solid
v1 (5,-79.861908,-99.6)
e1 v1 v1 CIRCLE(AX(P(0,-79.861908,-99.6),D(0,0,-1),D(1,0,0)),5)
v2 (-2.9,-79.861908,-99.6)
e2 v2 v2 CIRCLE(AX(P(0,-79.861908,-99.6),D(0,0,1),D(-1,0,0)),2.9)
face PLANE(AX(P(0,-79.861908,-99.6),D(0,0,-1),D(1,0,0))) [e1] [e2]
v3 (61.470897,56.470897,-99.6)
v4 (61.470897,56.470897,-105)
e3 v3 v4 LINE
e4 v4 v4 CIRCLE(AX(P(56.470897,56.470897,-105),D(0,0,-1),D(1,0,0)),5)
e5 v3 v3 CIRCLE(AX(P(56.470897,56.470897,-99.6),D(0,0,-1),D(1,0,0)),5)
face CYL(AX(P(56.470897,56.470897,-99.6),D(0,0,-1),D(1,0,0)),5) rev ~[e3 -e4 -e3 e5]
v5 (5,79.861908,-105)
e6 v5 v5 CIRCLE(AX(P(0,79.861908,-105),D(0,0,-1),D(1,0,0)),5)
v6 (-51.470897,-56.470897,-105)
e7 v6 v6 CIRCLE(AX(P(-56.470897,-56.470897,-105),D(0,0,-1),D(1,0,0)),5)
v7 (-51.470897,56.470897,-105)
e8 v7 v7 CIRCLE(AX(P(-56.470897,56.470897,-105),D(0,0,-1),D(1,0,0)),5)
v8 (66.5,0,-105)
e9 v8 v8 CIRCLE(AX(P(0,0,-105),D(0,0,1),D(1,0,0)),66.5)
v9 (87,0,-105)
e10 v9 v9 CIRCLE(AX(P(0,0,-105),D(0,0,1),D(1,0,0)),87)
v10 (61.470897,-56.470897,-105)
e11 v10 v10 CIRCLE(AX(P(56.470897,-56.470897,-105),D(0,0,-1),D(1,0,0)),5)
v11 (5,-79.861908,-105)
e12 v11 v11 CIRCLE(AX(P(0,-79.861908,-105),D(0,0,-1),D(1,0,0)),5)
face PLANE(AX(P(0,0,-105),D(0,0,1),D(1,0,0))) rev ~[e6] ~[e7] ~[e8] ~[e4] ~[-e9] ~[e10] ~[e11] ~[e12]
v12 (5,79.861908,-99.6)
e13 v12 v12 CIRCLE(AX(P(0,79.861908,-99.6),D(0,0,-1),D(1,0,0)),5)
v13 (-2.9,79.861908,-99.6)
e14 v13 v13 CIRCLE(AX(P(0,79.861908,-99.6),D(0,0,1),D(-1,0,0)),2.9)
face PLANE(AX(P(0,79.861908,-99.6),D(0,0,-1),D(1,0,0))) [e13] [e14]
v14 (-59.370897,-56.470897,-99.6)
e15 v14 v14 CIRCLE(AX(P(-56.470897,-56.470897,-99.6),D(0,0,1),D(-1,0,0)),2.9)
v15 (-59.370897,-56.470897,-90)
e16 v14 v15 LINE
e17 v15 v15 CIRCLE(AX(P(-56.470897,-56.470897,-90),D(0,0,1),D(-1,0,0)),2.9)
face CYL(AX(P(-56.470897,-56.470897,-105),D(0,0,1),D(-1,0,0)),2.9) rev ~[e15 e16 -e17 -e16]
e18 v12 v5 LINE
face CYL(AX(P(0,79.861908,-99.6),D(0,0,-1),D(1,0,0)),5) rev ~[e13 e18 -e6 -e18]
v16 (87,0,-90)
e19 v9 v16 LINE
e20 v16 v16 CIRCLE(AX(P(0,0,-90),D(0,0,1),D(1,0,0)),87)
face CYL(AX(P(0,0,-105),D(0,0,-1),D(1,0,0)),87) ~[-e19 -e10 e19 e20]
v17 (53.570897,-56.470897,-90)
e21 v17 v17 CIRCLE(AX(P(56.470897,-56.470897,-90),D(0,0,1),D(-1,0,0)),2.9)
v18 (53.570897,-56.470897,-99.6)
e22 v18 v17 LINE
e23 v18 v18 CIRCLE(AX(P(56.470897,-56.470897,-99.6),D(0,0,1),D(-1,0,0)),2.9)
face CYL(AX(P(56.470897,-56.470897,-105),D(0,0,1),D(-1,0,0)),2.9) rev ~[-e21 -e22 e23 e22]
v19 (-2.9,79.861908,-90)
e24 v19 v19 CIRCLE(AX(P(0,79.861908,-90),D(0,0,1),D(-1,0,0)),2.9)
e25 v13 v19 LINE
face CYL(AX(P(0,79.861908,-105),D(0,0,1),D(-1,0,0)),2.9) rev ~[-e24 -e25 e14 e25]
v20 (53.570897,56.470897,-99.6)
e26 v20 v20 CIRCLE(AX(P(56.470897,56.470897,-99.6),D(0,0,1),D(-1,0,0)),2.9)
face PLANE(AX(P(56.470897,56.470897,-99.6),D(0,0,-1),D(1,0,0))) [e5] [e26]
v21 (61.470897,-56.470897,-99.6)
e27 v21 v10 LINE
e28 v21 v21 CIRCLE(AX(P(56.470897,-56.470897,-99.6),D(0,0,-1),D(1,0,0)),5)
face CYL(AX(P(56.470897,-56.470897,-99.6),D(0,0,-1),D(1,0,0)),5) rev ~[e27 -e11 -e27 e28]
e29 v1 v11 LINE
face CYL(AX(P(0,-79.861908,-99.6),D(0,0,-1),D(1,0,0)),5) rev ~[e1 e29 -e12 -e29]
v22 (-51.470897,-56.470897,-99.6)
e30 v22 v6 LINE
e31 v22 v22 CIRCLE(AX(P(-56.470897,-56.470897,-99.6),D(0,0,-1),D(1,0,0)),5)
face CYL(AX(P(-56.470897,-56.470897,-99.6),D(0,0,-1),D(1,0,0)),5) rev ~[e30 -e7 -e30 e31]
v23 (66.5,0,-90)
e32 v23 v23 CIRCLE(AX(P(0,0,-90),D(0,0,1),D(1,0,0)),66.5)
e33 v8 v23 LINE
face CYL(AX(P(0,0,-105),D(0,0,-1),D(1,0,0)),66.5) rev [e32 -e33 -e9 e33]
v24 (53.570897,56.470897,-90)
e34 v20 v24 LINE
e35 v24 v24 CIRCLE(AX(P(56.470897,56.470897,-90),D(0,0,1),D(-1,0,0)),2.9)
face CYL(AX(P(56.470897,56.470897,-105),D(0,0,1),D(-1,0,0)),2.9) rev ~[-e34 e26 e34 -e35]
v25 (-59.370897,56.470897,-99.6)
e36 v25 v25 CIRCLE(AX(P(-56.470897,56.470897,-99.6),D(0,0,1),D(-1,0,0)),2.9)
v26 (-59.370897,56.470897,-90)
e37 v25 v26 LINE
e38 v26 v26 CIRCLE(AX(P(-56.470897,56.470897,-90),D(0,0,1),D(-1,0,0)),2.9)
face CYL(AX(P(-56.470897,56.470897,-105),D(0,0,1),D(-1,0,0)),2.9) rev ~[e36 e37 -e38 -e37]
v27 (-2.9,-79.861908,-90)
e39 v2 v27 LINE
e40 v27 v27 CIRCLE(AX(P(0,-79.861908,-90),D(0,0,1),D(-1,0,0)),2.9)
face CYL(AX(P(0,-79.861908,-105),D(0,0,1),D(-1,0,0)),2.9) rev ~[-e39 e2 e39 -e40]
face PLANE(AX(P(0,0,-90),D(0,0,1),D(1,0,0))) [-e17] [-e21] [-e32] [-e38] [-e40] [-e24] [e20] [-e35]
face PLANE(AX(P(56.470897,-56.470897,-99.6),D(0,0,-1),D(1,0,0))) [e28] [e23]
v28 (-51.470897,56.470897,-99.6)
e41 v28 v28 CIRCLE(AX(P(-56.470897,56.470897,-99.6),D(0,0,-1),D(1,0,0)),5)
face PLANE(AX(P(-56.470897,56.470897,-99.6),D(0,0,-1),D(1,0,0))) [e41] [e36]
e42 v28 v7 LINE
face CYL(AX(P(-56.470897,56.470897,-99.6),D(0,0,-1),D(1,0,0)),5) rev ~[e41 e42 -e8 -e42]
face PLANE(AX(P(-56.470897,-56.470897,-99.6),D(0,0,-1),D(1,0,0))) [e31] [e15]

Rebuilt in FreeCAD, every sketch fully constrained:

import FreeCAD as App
import Part
import Sketcher

V = App.Vector

doc = App.newDocument("Part")
body = doc.addObject("PartDesign::Body", "Body")

# Sketch on XY plane
sketch1 = doc.addObject("Sketcher::SketchObject", "Sketch")
body.addObject(sketch1)
sketch1.AttachmentSupport = (doc.XY_Plane, [""])
sketch1.MapMode = "FlatFace"
sketch1.addGeometry(Part.Circle(V(0, 0, 0), V(0, 0, 1), 87), False)
sketch1.addConstraint([
    Sketcher.Constraint("Coincident", 0, 3, -1, 1),
    Sketcher.Constraint("Diameter", 0, 174.0),
])
pad1 = doc.addObject("PartDesign::Pad", "Pad")
body.addObject(pad1)
pad1.Profile = sketch1
pad1.Length = 15

# Sketch on XY plane
sketch2 = doc.addObject("Sketcher::SketchObject", "Sketch001")
body.addObject(sketch2)
sketch2.AttachmentSupport = (doc.XY_Plane, [""])
sketch2.MapMode = "FlatFace"
sketch2.addGeometry(Part.Circle(V(0, 0, 0), V(0, 0, 1), 66), False)
sketch2.addConstraint([
    Sketcher.Constraint("Coincident", 0, 3, -1, 1),
    Sketcher.Constraint("Diameter", 0, 133.0),
])
pocket1 = doc.addObject("PartDesign::Pocket", "Pocket")
body.addObject(pocket1)
pocket1.Profile = sketch2
pocket1.Length = 15
pocket1.Reversed = True

# Sketch on XY plane
sketch3 = doc.addObject("Sketcher::SketchObject", "Sketch002")
body.addObject(sketch3)
sketch3.AttachmentSupport = (doc.XY_Plane, [""])
sketch3.MapMode = "FlatFace"
sketch3.addGeometry([
    Part.Circle(V(0, 79.9, 0), V(0, 0, 1), 2.9),  # 0
    Part.Circle(V(56.5, 56.5, 0), V(0, 0, 1), 2.9),  # 1
    Part.Circle(V(56.5, -56.5, 0), V(0, 0, 1), 2.9),  # 2
    Part.Circle(V(0, -79.9, 0), V(0, 0, 1), 2.9),  # 3
    Part.Circle(V(-56.5, -56.5, 0), V(0, 0, 1), 2.9),  # 4
    Part.Circle(V(-56.5, 56.5, 0), V(0, 0, 1), 2.9),  # 5
    Part.Circle(V(0, 79.9, 0), V(0, 0, 1), 2.9),  # 6
], False)
sketch3.addConstraint([
    Sketcher.Constraint("Coincident", 6, 3, 0, 3),
    Sketcher.Constraint("Equal", 0, 1),
    Sketcher.Constraint("Equal", 1, 2),
    Sketcher.Constraint("Equal", 2, 3),
    Sketcher.Constraint("Equal", 3, 4),
    Sketcher.Constraint("Equal", 4, 5),
    Sketcher.Constraint("Equal", 5, 6),
    Sketcher.Constraint("Symmetric", 0, 3, 3, 3, -1, 1),
    Sketcher.Constraint("Symmetric", 1, 3, 4, 3, -1, 1),
    Sketcher.Constraint("Symmetric", 2, 3, 5, 3, -1, 1),
    Sketcher.Constraint("Symmetric", 2, 3, 4, 3, -2),
    Sketcher.Constraint("PointOnObject", 0, 3, -2),
    Sketcher.Constraint("Diameter", 0, 5.8),
    Sketcher.Constraint("DistanceY", -1, 1, 0, 3, 79.861908),
    Sketcher.Constraint("DistanceY", 1, 3, 0, 3, 23.391011),
    Sketcher.Constraint("DistanceX", -1, 1, 1, 3, 56.470897),
])
doc.recompute()
hole = doc.addObject("PartDesign::Hole", "Hole")
body.addObject(hole)
hole.Profile = sketch3
hole.ThreadType = "None"
hole.Diameter = 5.8
hole.DepthType = "Dimension"
hole.Depth = 25
hole.DrillPoint = "Flat"
hole.HoleCutType = "Counterbore"
hole.HoleCutDiameter = 10
hole.HoleCutDepth = 5.4
hole.Reversed = True
body2 = doc.addObject("PartDesign::Body", "Body001")
doc.recompute()

body.Placement = App.Placement(V(0, 0, -105), App.Rotation(V(0, 0, 1), 0))
boolean = doc.addObject("PartDesign::Boolean", "Boolean")
body2.addObject(boolean)
boolean.Type = "Fuse"
boolean.addObjects([body])

doc.recompute()
